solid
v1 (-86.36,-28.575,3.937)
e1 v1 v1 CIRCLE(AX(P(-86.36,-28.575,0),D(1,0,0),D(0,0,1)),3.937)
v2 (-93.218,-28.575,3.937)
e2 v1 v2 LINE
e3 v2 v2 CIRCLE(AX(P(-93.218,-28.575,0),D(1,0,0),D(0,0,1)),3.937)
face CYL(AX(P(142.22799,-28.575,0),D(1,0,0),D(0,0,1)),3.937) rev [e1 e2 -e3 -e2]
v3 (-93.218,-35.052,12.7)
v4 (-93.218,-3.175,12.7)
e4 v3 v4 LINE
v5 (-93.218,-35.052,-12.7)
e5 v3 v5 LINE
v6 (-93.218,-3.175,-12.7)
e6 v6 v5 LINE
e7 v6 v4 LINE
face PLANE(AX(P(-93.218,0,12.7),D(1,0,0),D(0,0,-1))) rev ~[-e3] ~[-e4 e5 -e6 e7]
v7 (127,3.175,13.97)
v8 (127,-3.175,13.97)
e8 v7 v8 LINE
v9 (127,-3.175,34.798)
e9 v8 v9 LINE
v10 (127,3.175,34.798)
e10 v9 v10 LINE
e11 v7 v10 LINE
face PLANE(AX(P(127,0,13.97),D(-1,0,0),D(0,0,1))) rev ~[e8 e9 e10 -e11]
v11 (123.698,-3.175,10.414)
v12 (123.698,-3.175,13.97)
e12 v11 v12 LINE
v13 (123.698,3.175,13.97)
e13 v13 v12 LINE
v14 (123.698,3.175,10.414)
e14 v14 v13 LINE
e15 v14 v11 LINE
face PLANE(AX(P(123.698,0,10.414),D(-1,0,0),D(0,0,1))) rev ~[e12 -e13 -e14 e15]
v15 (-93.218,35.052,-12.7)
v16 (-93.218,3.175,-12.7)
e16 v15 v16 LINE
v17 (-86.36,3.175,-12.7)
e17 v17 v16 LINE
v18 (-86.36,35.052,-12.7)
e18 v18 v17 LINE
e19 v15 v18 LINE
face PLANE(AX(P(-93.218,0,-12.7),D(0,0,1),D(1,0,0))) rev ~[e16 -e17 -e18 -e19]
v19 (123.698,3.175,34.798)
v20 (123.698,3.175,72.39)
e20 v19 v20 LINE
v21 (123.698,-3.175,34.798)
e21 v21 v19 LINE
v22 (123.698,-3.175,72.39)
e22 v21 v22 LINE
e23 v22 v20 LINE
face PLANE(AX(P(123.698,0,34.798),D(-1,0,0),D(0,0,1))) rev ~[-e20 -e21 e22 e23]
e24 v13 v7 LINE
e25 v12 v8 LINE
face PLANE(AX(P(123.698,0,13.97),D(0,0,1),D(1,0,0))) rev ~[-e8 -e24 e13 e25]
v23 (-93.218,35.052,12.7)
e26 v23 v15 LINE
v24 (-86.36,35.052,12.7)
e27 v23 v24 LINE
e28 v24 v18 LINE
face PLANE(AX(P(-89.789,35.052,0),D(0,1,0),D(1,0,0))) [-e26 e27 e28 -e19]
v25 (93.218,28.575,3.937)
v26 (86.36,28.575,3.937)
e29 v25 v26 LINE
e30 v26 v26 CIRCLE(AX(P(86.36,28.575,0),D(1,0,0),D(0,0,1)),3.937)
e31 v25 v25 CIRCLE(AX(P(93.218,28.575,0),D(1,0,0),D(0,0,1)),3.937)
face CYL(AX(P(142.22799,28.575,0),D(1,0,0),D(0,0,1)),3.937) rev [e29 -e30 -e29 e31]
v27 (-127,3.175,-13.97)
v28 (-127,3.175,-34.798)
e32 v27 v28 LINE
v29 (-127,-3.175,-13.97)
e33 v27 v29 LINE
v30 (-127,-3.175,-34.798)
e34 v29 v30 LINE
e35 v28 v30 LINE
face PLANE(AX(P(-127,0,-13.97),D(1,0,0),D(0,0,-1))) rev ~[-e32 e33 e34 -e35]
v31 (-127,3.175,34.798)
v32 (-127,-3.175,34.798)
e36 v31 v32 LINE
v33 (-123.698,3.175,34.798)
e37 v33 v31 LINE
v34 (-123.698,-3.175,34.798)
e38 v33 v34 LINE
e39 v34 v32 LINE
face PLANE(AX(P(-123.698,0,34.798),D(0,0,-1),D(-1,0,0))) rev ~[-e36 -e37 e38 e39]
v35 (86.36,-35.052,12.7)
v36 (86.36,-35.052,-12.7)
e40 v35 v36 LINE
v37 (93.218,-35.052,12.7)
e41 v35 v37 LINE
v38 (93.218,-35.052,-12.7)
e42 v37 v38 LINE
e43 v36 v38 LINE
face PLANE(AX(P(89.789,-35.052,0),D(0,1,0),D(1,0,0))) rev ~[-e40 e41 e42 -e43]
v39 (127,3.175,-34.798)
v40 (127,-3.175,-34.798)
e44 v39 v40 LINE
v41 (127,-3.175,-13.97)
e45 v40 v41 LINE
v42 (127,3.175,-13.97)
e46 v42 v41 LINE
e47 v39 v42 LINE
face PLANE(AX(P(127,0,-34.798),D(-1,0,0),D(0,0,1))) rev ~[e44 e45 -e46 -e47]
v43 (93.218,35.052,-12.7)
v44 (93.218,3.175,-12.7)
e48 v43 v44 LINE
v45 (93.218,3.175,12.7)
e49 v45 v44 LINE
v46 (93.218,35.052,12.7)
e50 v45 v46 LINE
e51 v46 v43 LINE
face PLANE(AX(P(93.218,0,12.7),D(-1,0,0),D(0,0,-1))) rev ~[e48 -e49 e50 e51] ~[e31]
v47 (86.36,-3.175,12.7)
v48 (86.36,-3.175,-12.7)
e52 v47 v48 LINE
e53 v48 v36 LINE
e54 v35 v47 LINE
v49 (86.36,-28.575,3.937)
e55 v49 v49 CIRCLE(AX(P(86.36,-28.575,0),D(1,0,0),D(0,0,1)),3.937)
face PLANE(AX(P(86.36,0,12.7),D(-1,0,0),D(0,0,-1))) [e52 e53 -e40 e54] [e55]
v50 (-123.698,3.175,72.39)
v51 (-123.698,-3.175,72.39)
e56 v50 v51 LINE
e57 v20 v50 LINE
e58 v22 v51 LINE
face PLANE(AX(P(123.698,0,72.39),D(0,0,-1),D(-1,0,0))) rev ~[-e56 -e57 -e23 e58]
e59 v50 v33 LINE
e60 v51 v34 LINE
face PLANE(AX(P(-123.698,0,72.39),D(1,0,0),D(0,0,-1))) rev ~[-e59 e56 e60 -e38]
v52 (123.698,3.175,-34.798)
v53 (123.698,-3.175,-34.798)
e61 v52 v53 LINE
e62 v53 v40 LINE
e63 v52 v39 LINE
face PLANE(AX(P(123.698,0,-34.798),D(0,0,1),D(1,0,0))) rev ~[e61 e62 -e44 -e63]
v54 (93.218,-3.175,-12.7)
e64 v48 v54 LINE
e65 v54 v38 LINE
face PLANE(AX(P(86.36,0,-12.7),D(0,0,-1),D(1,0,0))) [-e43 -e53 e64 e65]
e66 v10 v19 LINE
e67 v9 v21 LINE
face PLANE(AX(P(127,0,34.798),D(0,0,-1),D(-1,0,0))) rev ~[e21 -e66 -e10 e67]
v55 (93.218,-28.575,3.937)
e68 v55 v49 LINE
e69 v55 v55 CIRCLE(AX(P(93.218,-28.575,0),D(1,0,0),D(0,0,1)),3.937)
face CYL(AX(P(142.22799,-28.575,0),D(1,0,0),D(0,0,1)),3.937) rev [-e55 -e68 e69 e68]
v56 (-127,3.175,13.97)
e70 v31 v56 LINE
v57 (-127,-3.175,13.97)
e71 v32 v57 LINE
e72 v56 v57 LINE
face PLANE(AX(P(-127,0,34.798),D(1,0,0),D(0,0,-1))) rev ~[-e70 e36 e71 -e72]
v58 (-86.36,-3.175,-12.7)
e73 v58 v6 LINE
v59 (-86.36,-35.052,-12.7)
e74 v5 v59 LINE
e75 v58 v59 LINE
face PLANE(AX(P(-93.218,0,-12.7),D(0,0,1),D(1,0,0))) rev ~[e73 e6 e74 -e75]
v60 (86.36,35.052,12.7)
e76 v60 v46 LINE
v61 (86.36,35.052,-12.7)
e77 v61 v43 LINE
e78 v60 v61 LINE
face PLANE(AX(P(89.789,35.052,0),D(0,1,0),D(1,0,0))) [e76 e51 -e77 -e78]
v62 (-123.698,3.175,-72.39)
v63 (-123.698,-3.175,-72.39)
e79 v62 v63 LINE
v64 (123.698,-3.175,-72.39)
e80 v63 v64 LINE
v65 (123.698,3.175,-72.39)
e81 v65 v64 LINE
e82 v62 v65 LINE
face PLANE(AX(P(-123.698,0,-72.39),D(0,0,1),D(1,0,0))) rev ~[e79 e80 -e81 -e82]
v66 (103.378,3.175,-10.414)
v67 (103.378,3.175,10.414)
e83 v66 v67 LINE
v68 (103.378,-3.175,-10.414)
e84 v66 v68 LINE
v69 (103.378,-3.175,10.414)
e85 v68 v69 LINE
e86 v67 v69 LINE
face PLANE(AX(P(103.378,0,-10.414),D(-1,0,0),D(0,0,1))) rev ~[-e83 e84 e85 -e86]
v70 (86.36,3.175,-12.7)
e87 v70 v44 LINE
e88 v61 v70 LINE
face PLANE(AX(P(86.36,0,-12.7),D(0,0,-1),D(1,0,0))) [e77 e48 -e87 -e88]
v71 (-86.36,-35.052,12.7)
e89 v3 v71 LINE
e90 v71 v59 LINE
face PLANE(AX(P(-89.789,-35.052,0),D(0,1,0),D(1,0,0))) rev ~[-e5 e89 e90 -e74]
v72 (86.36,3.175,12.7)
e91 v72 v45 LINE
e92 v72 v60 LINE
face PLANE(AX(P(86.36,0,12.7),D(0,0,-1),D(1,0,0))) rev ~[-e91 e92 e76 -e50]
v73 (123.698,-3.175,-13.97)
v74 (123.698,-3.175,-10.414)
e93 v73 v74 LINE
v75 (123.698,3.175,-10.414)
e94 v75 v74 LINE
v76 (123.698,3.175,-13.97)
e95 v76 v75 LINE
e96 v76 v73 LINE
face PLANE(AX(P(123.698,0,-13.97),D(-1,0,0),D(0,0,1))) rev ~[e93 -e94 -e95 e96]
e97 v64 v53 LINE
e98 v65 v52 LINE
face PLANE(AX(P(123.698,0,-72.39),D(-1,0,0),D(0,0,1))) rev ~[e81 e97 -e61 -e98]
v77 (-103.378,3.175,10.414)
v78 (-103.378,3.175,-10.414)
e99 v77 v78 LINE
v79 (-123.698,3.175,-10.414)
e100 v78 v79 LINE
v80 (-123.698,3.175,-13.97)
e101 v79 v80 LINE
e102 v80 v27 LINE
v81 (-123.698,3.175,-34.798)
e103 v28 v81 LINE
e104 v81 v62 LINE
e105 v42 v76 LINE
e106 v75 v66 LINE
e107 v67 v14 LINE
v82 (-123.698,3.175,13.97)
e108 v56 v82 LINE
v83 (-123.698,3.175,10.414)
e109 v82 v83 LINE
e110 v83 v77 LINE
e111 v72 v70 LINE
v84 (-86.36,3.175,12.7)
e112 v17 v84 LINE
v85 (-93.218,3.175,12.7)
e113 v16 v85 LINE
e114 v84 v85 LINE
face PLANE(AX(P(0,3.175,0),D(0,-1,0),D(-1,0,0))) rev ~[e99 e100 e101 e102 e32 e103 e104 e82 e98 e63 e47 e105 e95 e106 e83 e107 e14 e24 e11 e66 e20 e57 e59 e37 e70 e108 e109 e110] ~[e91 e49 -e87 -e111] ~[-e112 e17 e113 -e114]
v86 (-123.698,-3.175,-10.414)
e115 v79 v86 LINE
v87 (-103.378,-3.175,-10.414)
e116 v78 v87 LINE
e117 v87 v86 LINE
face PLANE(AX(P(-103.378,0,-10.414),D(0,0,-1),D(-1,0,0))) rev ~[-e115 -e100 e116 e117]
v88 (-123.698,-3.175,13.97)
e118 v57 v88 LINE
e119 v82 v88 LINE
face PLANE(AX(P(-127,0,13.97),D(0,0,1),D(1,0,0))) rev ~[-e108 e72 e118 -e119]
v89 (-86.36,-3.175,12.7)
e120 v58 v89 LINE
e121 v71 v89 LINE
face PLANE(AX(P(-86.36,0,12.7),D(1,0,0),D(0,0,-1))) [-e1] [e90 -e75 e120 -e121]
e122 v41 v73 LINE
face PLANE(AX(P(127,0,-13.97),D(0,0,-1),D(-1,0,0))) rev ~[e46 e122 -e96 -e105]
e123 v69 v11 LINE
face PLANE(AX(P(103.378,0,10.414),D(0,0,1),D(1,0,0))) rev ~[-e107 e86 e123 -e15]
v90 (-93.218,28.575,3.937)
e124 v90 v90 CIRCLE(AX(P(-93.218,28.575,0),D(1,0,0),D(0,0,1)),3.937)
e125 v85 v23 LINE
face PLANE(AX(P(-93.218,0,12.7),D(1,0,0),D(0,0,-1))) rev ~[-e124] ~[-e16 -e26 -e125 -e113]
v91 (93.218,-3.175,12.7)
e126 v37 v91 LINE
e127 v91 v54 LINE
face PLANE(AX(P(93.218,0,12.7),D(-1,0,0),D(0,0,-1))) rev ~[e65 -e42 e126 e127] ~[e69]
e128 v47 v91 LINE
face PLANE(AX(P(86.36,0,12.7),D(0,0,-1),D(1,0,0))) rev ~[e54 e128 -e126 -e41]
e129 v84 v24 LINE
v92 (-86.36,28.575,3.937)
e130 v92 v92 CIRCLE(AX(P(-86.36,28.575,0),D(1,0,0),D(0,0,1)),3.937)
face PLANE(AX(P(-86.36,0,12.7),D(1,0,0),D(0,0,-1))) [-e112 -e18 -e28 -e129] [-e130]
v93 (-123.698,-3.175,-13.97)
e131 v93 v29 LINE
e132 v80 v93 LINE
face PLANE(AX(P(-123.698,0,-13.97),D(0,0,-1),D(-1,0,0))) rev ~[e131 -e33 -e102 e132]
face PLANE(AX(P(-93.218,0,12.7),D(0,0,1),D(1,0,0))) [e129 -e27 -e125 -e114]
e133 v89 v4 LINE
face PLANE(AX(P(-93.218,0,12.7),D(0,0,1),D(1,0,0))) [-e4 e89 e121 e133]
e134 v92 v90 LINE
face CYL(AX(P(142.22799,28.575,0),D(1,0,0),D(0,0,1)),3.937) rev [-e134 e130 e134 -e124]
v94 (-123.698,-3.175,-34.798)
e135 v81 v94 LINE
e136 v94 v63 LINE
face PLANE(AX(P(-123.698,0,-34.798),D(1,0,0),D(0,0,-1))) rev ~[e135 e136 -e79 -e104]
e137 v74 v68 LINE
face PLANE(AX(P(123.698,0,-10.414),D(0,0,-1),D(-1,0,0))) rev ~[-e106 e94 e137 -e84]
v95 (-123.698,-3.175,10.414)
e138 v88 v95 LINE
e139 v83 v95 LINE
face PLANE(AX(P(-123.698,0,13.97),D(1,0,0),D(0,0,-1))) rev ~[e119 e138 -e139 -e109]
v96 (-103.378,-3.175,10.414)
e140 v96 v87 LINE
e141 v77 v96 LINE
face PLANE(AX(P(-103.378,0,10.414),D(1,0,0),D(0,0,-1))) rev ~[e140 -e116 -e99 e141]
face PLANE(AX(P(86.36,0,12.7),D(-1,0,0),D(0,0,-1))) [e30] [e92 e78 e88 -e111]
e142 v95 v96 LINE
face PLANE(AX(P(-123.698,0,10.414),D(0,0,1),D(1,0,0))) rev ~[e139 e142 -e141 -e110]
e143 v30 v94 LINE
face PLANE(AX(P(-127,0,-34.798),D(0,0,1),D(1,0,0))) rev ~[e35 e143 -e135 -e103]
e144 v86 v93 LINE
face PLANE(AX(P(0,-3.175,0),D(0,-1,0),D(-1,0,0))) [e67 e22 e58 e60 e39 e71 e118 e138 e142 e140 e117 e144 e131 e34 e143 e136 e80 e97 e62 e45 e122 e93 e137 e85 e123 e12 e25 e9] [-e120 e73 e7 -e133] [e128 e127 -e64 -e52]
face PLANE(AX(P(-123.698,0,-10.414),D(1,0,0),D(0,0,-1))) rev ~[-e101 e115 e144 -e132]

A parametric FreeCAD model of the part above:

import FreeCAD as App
import Part
import Sketcher

V = App.Vector
Q = App.Units.Quantity


def add_polygon(sketch, points):
    """Adds a closed chain of lines whose ends are joined by coincident constraints."""
    first, n = sketch.GeometryCount, len(points)
    for a, b in zip(points, points[1:] + points[:1]):
        sketch.addGeometry(Part.LineSegment(App.Vector(*a, 0), App.Vector(*b, 0)), False)
    for i in range(n):
        sketch.addConstraint(Sketcher.Constraint("Coincident", first + i, 2, first + (i + 1) % n, 1))

doc = App.newDocument("Part")
body = doc.addObject("PartDesign::Body", "Body")

sketch1 = doc.addObject("Sketcher::SketchObject", "Sketch")
body.addObject(sketch1)
sketch1.AttachmentSupport = (doc.XZ_Plane, [""])
sketch1.MapMode = "FlatFace"
add_polygon(sketch1, [(-123.7, 72.4), (123.7, 72.4), (123.7, 34.8), (127, 34.8), (127, 14), (123.7, 14), (123.7, 10.4), (103.4, 10.4), (103.4, -10.4), (123.7, -10.4), (123.7, -14), (127, -14), (127, -34.8), (123.7, -34.8), (123.7, -72.4), (-123.7, -72.4), (-123.7, -34.8), (-127, -34.8), (-127, -14), (-123.7, -14), (-123.7, -10.4), (-103.4, -10.4), (-103.4, 10.4), (-123.7, 10.4), (-123.7, 14), (-127, 14), (-127, 34.8), (-123.7, 34.8)])
sketch1.addConstraint(Sketcher.Constraint("Horizontal", 0))
sketch1.addConstraint(Sketcher.Constraint("Vertical", 1))
sketch1.addConstraint(Sketcher.Constraint("Horizontal", 2))
sketch1.addConstraint(Sketcher.Constraint("Vertical", 3))
sketch1.addConstraint(Sketcher.Constraint("Horizontal", 4))
sketch1.addConstraint(Sketcher.Constraint("Vertical", 5))
sketch1.addConstraint(Sketcher.Constraint("Horizontal", 6))
sketch1.addConstraint(Sketcher.Constraint("Vertical", 7))
sketch1.addConstraint(Sketcher.Constraint("Horizontal", 8))
sketch1.addConstraint(Sketcher.Constraint("Vertical", 9))
sketch1.addConstraint(Sketcher.Constraint("Horizontal", 10))
sketch1.addConstraint(Sketcher.Constraint("Vertical", 11))
sketch1.addConstraint(Sketcher.Constraint("Horizontal", 12))
sketch1.addConstraint(Sketcher.Constraint("Vertical", 13))
sketch1.addConstraint(Sketcher.Constraint("Horizontal", 14))
sketch1.addConstraint(Sketcher.Constraint("Vertical", 15))
sketch1.addConstraint(Sketcher.Constraint("Horizontal", 16))
sketch1.addConstraint(Sketcher.Constraint("Vertical", 17))
sketch1.addConstraint(Sketcher.Constraint("Horizontal", 18))
sketch1.addConstraint(Sketcher.Constraint("Vertical", 19))
sketch1.addConstraint(Sketcher.Constraint("Horizontal", 20))
sketch1.addConstraint(Sketcher.Constraint("Vertical", 21))
sketch1.addConstraint(Sketcher.Constraint("Horizontal", 22))
sketch1.addConstraint(Sketcher.Constraint("Vertical", 23))
sketch1.addConstraint(Sketcher.Constraint("Horizontal", 24))
sketch1.addConstraint(Sketcher.Constraint("Vertical", 25))
sketch1.addConstraint(Sketcher.Constraint("Horizontal", 26))
sketch1.addConstraint(Sketcher.Constraint("Vertical", 27))
sketch1.addConstraint(Sketcher.Constraint("Symmetric", 0, 2, 14, 2, -1, 1))
sketch1.addConstraint(Sketcher.Constraint("Symmetric", 2, 2, 16, 2, -1, 1))
sketch1.addConstraint(Sketcher.Constraint("Symmetric", 4, 2, 18, 2, -1, 1))
sketch1.addConstraint(Sketcher.Constraint("Symmetric", 6, 2, 20, 2, -1, 1))
sketch1.addConstraint(Sketcher.Constraint("Symmetric", 8, 2, 22, 2, -1, 1))
sketch1.addConstraint(Sketcher.Constraint("Symmetric", 10, 2, 24, 2, -1, 1))
sketch1.addConstraint(Sketcher.Constraint("Symmetric", 12, 2, 26, 2, -1, 1))
sketch1.addConstraint(Sketcher.Constraint("Symmetric", 12, 2, 15, 2, -2))
sketch1.addConstraint(Sketcher.Constraint("Symmetric", 10, 2, 17, 2, -2))
sketch1.addConstraint(Sketcher.Constraint("Symmetric", 8, 2, 19, 2, -2))
sketch1.addConstraint(Sketcher.Constraint("Vertical", 1, 2, 4, 2))
sketch1.addConstraint(Sketcher.Constraint("Equal", 3, 7))
sketch1.addConstraint(Sketcher.Constraint("DistanceX", 6, 2, 6, 1, Q("0.8 in")))
sketch1.addConstraint(Sketcher.Constraint("DistanceX", -1, 1, 2, 2, Q("5 in")))
sketch1.addConstraint(Sketcher.Constraint("DistanceX", 0, 1, 0, 2, Q("9.74 in")))
sketch1.addConstraint(Sketcher.Constraint("DistanceY", 1, 2, 1, 1, Q("1.48 in")))
sketch1.addConstraint(Sketcher.Constraint("DistanceY", 3, 2, 3, 1, Q("0.82 in")))
sketch1.addConstraint(Sketcher.Constraint("DistanceY", 5, 2, 5, 1, Q("0.14 in")))
pad1 = doc.addObject("PartDesign::Pad", "Pad")
body.addObject(pad1)
pad1.Profile = sketch1
pad1.Length = Q("0.25 in")
pad1.Midplane = True

sketch2 = doc.addObject("Sketcher::SketchObject", "Sketch001")
body.addObject(sketch2)
sketch2.AttachmentSupport = (doc.XZ_Plane, [""])
sketch2.MapMode = "FlatFace"
add_polygon(sketch2, [(86, -13), (86, 13), (93, 13), (93, -13)])
add_polygon(sketch2, [(-93, -13), (-93, 13), (-86, 13), (-86, -13)])
sketch2.addConstraint(Sketcher.Constraint("Vertical", 0))
sketch2.addConstraint(Sketcher.Constraint("Horizontal", 1))
sketch2.addConstraint(Sketcher.Constraint("Vertical", 2))
sketch2.addConstraint(Sketcher.Constraint("Horizontal", 3))
sketch2.addConstraint(Sketcher.Constraint("Vertical", 4))
sketch2.addConstraint(Sketcher.Constraint("Horizontal", 5))
sketch2.addConstraint(Sketcher.Constraint("Vertical", 6))
sketch2.addConstraint(Sketcher.Constraint("Horizontal", 7))
sketch2.addConstraint(Sketcher.Constraint("Symmetric", 2, 2, 4, 2, -1, 1))
sketch2.addConstraint(Sketcher.Constraint("Symmetric", 0, 2, 6, 2, -1, 1))
sketch2.addConstraint(Sketcher.Constraint("Horizontal", 1, 2, 4, 2))
sketch2.addConstraint(Sketcher.Constraint("DistanceY", 0, 1, 0, 2, Q("1 in")))
sketch2.addConstraint(Sketcher.Constraint("DistanceX", 1, 1, 1, 2, Q("0.27 in")))
sketch2.addConstraint(Sketcher.Constraint("DistanceX", -1, 1, 0, 2, Q("3.4 in")))
pad2 = doc.addObject("PartDesign::Pad", "Pad001")
body.addObject(pad2)
pad2.Profile = sketch2
pad2.Length = Q("2.76 in")
pad2.Midplane = True

sketch3 = doc.addObject("Sketcher::SketchObject", "Sketch002")
body.addObject(sketch3)
sketch3.AttachmentSupport = (doc.YZ_Plane, [""])
sketch3.MapMode = "FlatFace"
sketch3.AttachmentOffset = App.Placement(V(0, 0, -3.67 * 25.4), App.Rotation())
sketch3.addGeometry(Part.Circle(V(28.6, 0, 0), V(0, 0, 1), 3.9), False)
sketch3.addGeometry(Part.Circle(V(-28.6, 0, 0), V(0, 0, 1), 3.9), False)
sketch3.addConstraint(Sketcher.Constraint("Equal", 0, 1))
sketch3.addConstraint(Sketcher.Constraint("Symmetric", 0, 3, 1, 3, -1, 1))
sketch3.addConstraint(Sketcher.Constraint("PointOnObject", 0, 3, -1))
sketch3.addConstraint(Sketcher.Constraint("Diameter", 0, Q("0.31 in")))
sketch3.addConstraint(Sketcher.Constraint("DistanceX", 1, 3, 0, 3, Q("2.25 in")))
pocket1 = doc.addObject("PartDesign::Pocket", "Pocket")
body.addObject(pocket1)
pocket1.Profile = sketch3
pocket1.Type = "ThroughAll"
pocket1.Midplane = True

doc.recompute()
